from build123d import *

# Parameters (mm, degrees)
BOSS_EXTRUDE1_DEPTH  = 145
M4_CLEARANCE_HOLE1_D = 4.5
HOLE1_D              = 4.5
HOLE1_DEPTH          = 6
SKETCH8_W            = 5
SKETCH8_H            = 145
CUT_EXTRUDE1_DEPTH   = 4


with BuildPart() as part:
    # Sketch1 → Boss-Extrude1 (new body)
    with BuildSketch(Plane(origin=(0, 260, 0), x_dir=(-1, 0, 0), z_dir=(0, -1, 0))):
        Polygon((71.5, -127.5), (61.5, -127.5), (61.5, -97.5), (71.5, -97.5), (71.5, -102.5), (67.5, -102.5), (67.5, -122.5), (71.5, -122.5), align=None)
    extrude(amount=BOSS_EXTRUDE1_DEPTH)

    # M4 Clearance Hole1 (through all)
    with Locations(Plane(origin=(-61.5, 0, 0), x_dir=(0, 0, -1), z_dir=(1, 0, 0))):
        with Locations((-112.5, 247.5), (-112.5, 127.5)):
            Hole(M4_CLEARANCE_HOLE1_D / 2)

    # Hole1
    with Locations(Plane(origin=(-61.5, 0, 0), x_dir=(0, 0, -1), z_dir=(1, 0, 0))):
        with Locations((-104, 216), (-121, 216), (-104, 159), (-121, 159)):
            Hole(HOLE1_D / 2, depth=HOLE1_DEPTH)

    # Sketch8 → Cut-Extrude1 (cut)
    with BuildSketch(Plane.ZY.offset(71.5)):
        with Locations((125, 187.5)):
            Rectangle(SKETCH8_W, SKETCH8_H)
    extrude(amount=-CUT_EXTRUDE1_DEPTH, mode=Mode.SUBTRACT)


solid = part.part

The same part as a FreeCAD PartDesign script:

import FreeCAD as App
import Part
import Sketcher


def add_polygon(sketch, points):
    """Adds a closed chain of lines whose ends are joined by coincident constraints."""
    first, n = sketch.GeometryCount, len(points)
    for a, b in zip(points, points[1:] + points[:1]):
        sketch.addGeometry(Part.LineSegment(App.Vector(*a, 0), App.Vector(*b, 0)), False)
    for i in range(n):
        sketch.addConstraint(Sketcher.Constraint("Coincident", first + i, 2, first + (i + 1) % n, 1))

doc = App.newDocument("Part")
body = doc.addObject("PartDesign::Body", "Body")

sketch1 = body.newObject("Sketcher::SketchObject", "Sketch")
sketch1.AttachmentSupport = (doc.getObject("XZ_Plane"), [""])
sketch1.MapMode = "FlatFace"
sketch1.AttachmentOffset = App.Placement(App.Vector(0, 0, -260), App.Rotation())
add_polygon(sketch1, [(-61.5, 127.5), (-71.5, 127.5), (-71.5, 122.5), (-67.5, 122.5), (-67.5, 102.5), (-71.5, 102.5), (-71.5, 97.5), (-61.5, 97.5)])
sketch1.addConstraint([
    Sketcher.Constraint("Horizontal", 0),
    Sketcher.Constraint("Vertical", 1),
    Sketcher.Constraint("Horizontal", 2),
    Sketcher.Constraint("Vertical", 3),
    Sketcher.Constraint("Horizontal", 4),
    Sketcher.Constraint("Vertical", 5),
    Sketcher.Constraint("Horizontal", 6),
    Sketcher.Constraint("Vertical", 7),
    Sketcher.Constraint("Vertical", 1, 2, 4, 2),
    Sketcher.Constraint("Equal", 1, 5),
    Sketcher.Constraint("DistanceX", 0, 2, 0, 1, 10.0),
    Sketcher.Constraint("DistanceX", 2, 1, 2, 2, 4.0),
    Sketcher.Constraint("DistanceY", 1, 2, 1, 1, 5.0),
    Sketcher.Constraint("DistanceY", 3, 2, 3, 1, 20.0),
    Sketcher.Constraint("DistanceX", 0, 2, -1, 1, 71.5),
    Sketcher.Constraint("DistanceY", -1, 1, 0, 2, 127.5),
])
pad1 = body.newObject("PartDesign::Pad", "Pad")
pad1.Profile = sketch1
pad1.Length = 145

sketch2 = body.newObject("Sketcher::SketchObject", "Sketch001")
sketch2.AttachmentSupport = (doc.getObject("YZ_Plane"), [""])
sketch2.MapMode = "FlatFace"
sketch2.AttachmentOffset = App.Placement(App.Vector(0, 0, -61.5), App.Rotation())
sketch2.addGeometry([
    Part.Circle(App.Vector(247.5, 112.5, 0), App.Vector(0, 0, 1), 2.2),
    Part.Circle(App.Vector(127.5, 112.5, 0), App.Vector(0, 0, 1), 2.2),
], False)
sketch2.addConstraint([
    Sketcher.Constraint("Equal", 0, 1),
    Sketcher.Constraint("Horizontal", 0, 3, 1, 3),
    Sketcher.Constraint("Diameter", 0, 4.5),
    Sketcher.Constraint("DistanceX", 1, 3, 0, 3, 120.0),
    Sketcher.Constraint("DistanceX", -1, 1, 0, 3, 247.5),
    Sketcher.Constraint("DistanceY", -1, 1, 0, 3, 112.5),
])
doc.recompute()
hole = body.newObject("PartDesign::Hole", "Hole")
hole.Profile = sketch2
hole.ThreadType = "None"
hole.Diameter = 4.5
hole.DepthType = "ThroughAll"

sketch3 = body.newObject("Sketcher::SketchObject", "Sketch002")
sketch3.AttachmentSupport = (doc.getObject("YZ_Plane"), [""])
sketch3.MapMode = "FlatFace"
sketch3.AttachmentOffset = App.Placement(App.Vector(0, 0, -61.5), App.Rotation())
sketch3.addGeometry([
    Part.Circle(App.Vector(216, 104, 0), App.Vector(0, 0, 1), 2.2),
    Part.Circle(App.Vector(216, 121, 0), App.Vector(0, 0, 1), 2.2),
    Part.Circle(App.Vector(159, 104, 0), App.Vector(0, 0, 1), 2.2),
    Part.Circle(App.Vector(159, 121, 0), App.Vector(0, 0, 1), 2.2),
], False)
sketch3.addConstraint([
    Sketcher.Constraint("Equal", 0, 1),
    Sketcher.Constraint("Equal", 1, 2),
    Sketcher.Constraint("Equal", 2, 3),
    Sketcher.Constraint("Horizontal", 0, 3, 2, 3),
    Sketcher.Constraint("Horizontal", 1, 3, 3, 3),
    Sketcher.Constraint("Vertical", 0, 3, 1, 3),
    Sketcher.Constraint("Vertical", 2, 3, 3, 3),
    Sketcher.Constraint("Diameter", 0, 4.5),
    Sketcher.Constraint("DistanceX", -1, 1, 0, 3, 216.0),
    Sketcher.Constraint("DistanceY", -1, 1, 0, 3, 104.0),
    Sketcher.Constraint("DistanceY", -1, 1, 1, 3, 121.0),
    Sketcher.Constraint("DistanceX", -1, 1, 2, 3, 159.0),
])
doc.recompute()
hole2 = body.newObject("PartDesign::Hole", "Hole001")
hole2.Profile = sketch3
hole2.ThreadType = "None"
hole2.Diameter = 4.5
hole2.DepthType = "Dimension"
hole2.Depth = 6
hole2.DrillPoint = "Flat"

sketch4 = body.newObject("Sketcher::SketchObject", "Sketch003")
sketch4.AttachmentSupport = (doc.getObject("YZ_Plane"), [""])
sketch4.MapMode = "FlatFace"
sketch4.AttachmentOffset = App.Placement(App.Vector(0, 0, -71.5), App.Rotation())
add_polygon(sketch4, [(260, 122), (115, 122), (115, 128), (260, 128)])
sketch4.addConstraint([
    Sketcher.Constraint("Horizontal", 0),
    Sketcher.Constraint("Vertical", 1),
    Sketcher.Constraint("Horizontal", 2),
    Sketcher.Constraint("Vertical", 3),
    Sketcher.Constraint("DistanceX", 0, 2, 0, 1, 145.0),
    Sketcher.Constraint("DistanceY", 1, 1, 1, 2, 5.0),
    Sketcher.Constraint("DistanceX", -1, 1, 0, 2, 115.0),
    Sketcher.Constraint("DistanceY", -1, 1, 0, 2, 122.5),
])
pocket1 = body.newObject("PartDesign::Pocket", "Pocket")
pocket1.Profile = sketch4
pocket1.Length = 4
pocket1.Reversed = True

doc.recompute()
